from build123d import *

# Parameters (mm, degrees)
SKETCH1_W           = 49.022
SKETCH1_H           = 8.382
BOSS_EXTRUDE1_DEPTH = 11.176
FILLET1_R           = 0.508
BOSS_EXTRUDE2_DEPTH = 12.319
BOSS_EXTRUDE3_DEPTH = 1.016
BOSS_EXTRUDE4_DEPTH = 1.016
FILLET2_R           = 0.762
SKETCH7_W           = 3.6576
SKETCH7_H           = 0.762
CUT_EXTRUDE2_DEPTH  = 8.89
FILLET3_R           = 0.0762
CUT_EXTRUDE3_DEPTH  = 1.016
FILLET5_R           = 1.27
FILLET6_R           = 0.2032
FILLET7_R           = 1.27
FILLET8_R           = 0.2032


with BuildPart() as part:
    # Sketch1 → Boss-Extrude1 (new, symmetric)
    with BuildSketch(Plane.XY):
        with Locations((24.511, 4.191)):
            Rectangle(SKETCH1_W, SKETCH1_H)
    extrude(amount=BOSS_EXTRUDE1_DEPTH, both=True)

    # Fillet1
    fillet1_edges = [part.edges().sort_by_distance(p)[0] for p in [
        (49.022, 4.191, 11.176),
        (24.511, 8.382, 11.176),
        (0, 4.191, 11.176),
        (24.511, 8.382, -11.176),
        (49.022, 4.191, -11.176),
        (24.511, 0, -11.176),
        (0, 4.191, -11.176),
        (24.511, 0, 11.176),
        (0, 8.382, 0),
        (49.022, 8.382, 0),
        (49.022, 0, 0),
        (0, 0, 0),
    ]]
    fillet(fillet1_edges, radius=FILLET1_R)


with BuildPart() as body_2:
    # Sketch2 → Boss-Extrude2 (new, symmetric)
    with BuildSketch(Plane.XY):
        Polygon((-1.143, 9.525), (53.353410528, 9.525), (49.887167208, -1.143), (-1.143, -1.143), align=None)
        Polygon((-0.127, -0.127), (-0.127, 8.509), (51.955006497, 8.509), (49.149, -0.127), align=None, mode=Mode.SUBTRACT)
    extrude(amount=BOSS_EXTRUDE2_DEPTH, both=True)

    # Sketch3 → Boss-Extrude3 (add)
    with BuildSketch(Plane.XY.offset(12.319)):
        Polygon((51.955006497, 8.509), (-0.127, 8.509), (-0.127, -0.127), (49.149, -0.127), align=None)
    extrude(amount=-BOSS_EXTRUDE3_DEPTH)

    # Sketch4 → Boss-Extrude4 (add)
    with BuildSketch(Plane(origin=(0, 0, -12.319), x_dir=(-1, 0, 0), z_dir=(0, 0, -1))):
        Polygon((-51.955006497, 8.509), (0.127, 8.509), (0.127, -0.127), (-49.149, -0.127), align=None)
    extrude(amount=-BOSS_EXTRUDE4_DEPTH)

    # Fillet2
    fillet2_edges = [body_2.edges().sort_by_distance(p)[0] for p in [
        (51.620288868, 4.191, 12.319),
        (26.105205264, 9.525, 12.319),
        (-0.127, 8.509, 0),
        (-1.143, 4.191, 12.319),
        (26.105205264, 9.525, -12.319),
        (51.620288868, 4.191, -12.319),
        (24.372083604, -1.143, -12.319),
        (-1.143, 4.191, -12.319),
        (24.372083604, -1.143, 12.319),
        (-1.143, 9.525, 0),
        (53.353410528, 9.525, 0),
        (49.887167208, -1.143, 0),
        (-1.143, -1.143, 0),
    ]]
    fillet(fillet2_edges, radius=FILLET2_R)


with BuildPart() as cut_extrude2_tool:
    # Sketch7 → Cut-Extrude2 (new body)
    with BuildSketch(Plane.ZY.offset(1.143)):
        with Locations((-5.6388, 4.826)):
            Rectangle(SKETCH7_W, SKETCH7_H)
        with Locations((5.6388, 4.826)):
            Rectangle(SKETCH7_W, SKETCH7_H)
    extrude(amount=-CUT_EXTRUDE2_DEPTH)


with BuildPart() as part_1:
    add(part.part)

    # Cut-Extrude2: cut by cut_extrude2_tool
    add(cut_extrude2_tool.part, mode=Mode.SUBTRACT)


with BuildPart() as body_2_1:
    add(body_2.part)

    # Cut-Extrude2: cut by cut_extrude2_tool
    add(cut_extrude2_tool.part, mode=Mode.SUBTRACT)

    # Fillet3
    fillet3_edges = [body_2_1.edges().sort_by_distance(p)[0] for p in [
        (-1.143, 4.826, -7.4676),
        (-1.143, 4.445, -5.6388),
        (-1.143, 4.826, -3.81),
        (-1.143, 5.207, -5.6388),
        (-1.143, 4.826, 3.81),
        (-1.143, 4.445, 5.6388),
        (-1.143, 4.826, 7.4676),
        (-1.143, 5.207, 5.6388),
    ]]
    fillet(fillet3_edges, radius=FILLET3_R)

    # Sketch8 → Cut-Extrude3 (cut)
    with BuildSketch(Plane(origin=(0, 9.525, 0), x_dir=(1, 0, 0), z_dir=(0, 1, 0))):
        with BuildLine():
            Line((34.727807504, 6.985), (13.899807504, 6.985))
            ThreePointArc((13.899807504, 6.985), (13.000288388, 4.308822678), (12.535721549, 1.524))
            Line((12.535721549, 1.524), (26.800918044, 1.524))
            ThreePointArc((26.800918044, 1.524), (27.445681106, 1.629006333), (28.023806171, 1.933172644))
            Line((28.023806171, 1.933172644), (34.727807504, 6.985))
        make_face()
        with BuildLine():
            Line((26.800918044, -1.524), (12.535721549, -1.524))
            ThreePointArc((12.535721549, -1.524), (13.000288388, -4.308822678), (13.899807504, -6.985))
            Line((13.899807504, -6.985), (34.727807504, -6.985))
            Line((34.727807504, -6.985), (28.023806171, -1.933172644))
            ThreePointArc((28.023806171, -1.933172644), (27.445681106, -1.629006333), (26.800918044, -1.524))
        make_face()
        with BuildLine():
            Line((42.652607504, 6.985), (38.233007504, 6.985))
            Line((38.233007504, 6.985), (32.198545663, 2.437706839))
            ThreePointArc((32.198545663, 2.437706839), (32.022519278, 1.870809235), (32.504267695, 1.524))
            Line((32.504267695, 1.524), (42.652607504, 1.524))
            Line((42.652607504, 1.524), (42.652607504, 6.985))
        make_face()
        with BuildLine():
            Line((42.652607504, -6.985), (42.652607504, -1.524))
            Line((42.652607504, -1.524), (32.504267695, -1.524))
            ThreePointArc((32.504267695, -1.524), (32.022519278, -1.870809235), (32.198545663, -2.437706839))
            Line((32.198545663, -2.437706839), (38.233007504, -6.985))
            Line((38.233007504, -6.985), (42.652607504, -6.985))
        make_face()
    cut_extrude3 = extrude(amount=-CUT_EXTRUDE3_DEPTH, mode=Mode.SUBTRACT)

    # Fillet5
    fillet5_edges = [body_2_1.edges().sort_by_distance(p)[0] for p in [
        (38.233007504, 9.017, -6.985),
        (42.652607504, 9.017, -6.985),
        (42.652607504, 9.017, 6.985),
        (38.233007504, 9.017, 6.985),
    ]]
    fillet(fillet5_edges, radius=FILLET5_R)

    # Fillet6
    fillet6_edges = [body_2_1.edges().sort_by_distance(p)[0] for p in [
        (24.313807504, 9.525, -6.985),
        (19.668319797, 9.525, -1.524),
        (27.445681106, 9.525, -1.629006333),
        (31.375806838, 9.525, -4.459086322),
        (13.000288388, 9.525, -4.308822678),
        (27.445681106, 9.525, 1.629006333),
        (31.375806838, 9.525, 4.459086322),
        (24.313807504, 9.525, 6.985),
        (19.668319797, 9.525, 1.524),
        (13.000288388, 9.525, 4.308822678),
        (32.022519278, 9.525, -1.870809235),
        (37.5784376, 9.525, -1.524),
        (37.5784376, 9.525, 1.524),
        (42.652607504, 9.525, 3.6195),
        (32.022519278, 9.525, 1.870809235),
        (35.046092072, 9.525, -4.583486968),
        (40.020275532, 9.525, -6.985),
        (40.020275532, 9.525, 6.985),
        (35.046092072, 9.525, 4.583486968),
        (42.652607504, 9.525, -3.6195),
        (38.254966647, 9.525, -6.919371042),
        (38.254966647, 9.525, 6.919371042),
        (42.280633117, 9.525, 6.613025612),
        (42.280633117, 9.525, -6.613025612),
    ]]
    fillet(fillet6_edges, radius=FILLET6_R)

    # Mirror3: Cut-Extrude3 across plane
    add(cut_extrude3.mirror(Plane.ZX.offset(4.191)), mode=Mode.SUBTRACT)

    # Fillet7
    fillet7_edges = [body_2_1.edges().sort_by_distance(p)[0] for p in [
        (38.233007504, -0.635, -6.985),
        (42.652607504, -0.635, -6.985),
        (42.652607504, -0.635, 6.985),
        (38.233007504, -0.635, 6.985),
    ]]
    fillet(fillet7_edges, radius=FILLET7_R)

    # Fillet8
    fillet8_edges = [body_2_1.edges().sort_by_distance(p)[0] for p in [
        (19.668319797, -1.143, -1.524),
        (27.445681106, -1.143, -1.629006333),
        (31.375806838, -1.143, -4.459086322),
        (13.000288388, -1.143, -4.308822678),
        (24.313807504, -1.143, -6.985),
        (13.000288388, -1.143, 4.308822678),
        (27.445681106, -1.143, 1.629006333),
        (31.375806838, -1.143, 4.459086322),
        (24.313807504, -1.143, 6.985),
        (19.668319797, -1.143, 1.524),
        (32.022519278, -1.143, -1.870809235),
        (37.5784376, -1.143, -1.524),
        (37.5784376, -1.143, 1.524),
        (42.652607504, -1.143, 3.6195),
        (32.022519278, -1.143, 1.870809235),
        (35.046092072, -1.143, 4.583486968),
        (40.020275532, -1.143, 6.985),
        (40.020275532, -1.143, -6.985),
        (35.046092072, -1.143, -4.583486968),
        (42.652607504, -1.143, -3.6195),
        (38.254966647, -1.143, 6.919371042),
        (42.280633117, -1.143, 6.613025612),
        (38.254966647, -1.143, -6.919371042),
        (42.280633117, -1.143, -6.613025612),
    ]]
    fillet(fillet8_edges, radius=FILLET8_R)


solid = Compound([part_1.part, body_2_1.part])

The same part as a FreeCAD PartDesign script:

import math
import FreeCAD as App
import Part
import Sketcher
Q = App.Units.Quantity


def edges_at(feature, points):
    """Names of the edges that pass closest to the given points."""
    edges = feature.Shape.Edges
    near = lambda p: min(range(len(edges)), key=lambda i: edges[i].distToShape(Part.Vertex(*p))[0])
    return sorted({f"Edge{near(p) + 1}" for p in points})


def add_polygon(sketch, points):
    """Adds a closed chain of lines whose ends are joined by coincident constraints."""
    first, n = sketch.GeometryCount, len(points)
    for a, b in zip(points, points[1:] + points[:1]):
        sketch.addGeometry(Part.LineSegment(App.Vector(*a, 0), App.Vector(*b, 0)), False)
    for i in range(n):
        sketch.addConstraint(Sketcher.Constraint("Coincident", first + i, 2, first + (i + 1) % n, 1))

doc = App.newDocument("Part")
params = doc.addObject("Spreadsheet::Sheet", "Params")
for row, (alias, value) in enumerate([
    ("sketch1_width", "1.93 in"),
    ("sketch1_height", "0.33 in"),
    ("pad1_length", "0.88 in"),
    ("fillet_radius", "0.02 in"),
    ("sketch2_width", "1.94 in"),
    ("sketch2_height", "0.42 in"),
    ("sketch2_height2", "0.34 in"),
    ("pad2_length", "0.97 in"),
    ("sketch3_width", "1.94 in"),
    ("sketch3_height", "0.34 in"),
    ("pad3_length", "0.04 in"),
    ("sketch4_width", "1.94 in"),
    ("sketch4_height", "0.34 in"),
    ("pad4_length", "0.04 in"),
    ("fillet2_radius", "0.03 in"),
    ("sketch5_width", "0.03 in"),
    ("sketch5_height", "0.144 in"),
    ("pad5_length", "0.35 in"),
    ("fillet3_radius", "0.003 in"),
    ("sketch6_radius", "0.7 in"),
    ("sketch6_radius2", "0.08 in"),
    ("sketch6_radius3", "0.02 in"),
    ("sketch6_width", "0.82 in"),
    ("sketch6_width2", "0.174 in"),
    ("pocket1_length", "0.04 in"),
    ("fillet4_radius", "0.05 in"),
    ("fillet5_radius", "0.008 in"),
    ("fillet6_radius", "0.05 in"),
    ("fillet7_radius", "0.008 in"),
], start=1):
    params.set(f"A{row}", alias)
    params.set(f"B{row}", "=" + value)
    params.setAlias(f"B{row}", alias)

body = doc.addObject("PartDesign::Body", "Body")

# Sketch on XY plane
sketch1 = body.newObject("Sketcher::SketchObject", "Sketch")
sketch1.AttachmentSupport = (doc.getObject("XY_Plane"), [""])
sketch1.MapMode = "FlatFace"
add_polygon(sketch1, [(0, 8), (0, 0), (49, 0), (49, 8)])  # lines 0-3
sketch1.addConstraint(Sketcher.Constraint("Vertical", 0))
sketch1.addConstraint(Sketcher.Constraint("Horizontal", 1))
sketch1.addConstraint(Sketcher.Constraint("Vertical", 2))
sketch1.addConstraint(Sketcher.Constraint("Horizontal", 3))
sketch1.addConstraint(Sketcher.Constraint("Coincident", 0, 2, -1, 1))
sketch1.addConstraint(Sketcher.Constraint("DistanceX", 1, 1, 1, 2, Q("1.93 in")))
sketch1.addConstraint(Sketcher.Constraint("DistanceY", 0, 2, 0, 1, Q("0.33 in")))
sketch1.setExpression("Constraints[9]", "Params.sketch1_width")
sketch1.setExpression("Constraints[10]", "Params.sketch1_height")
pad1 = body.newObject("PartDesign::Pad", "Pad")
pad1.Profile = sketch1
pad1.setExpression("Length", "Params.pad1_length")
pad1.Midplane = True
doc.recompute()

fillet = body.newObject("PartDesign::Fillet", "Fillet")
fillet.Base = (pad1, ["Edge1"])
fillet.UseAllEdges = True
fillet.setExpression("Radius", "Params.fillet_radius")
body2 = doc.addObject("PartDesign::Body", "Body001")

# Sketch on XY plane
sketch2 = body2.newObject("Sketcher::SketchObject", "Sketch001")
sketch2.AttachmentSupport = (doc.getObject("XY_Plane001"), [""])
sketch2.MapMode = "FlatFace"
add_polygon(sketch2, [(53, 10), (-1, 10), (-1, -1), (50, -1)])  # lines 0-3
add_polygon(sketch2, [(0, 0), (0, 9), (52, 9), (49, 0)])  # lines 4-7
sketch2.addConstraint(Sketcher.Constraint("Horizontal", 0))
sketch2.addConstraint(Sketcher.Constraint("Vertical", 1))
sketch2.addConstraint(Sketcher.Constraint("Horizontal", 2))
sketch2.addConstraint(Sketcher.Constraint("Vertical", 4))
sketch2.addConstraint(Sketcher.Constraint("Horizontal", 5))
sketch2.addConstraint(Sketcher.Constraint("Horizontal", 7))
sketch2.addConstraint(Sketcher.Constraint("Parallel", 3, 6))
sketch2.addConstraint(Sketcher.Constraint("Angle", 3, Q("72 deg")))
sketch2.addConstraint(Sketcher.Constraint("DistanceX", 7, 2, 7, 1, Q("1.94 in")))
sketch2.addConstraint(Sketcher.Constraint("DistanceY", 1, 2, 1, 1, Q("0.42 in")))
sketch2.addConstraint(Sketcher.Constraint("DistanceY", 4, 1, 4, 2, Q("0.34 in")))
sketch2.addConstraint(Sketcher.Constraint("DistanceX", 0, 2, 4, 2, Q("0.04 in")))
sketch2.addConstraint(Sketcher.Constraint("DistanceY", 4, 2, 0, 2, Q("0.04 in")))
sketch2.addConstraint(Sketcher.Constraint("DistanceX", 0, 2, -1, 1, Q("0.045 in")))
sketch2.addConstraint(Sketcher.Constraint("DistanceY", -1, 1, 0, 2, Q("0.375 in")))
sketch2.addConstraint(Sketcher.Constraint("DistanceX", 0, 2, 0, 1, 54.496411))
sketch2.setExpression("Constraints[16]", "Params.sketch2_width")
sketch2.setExpression("Constraints[17]", "Params.sketch2_height")
sketch2.setExpression("Constraints[18]", "Params.sketch2_height2")
pad2 = body2.newObject("PartDesign::Pad", "Pad001")
pad2.Profile = sketch2
pad2.setExpression("Length", "Params.pad2_length")
pad2.Midplane = True

# Sketch on XY plane
sketch3 = body2.newObject("Sketcher::SketchObject", "Sketch002")
sketch3.AttachmentSupport = (doc.getObject("XY_Plane001"), [""])
sketch3.MapMode = "FlatFace"
sketch3.AttachmentOffset = App.Placement(App.Vector(0, 0, 0.485 * 25.4), App.Rotation())
add_polygon(sketch3, [(52, 9), (0, 9), (0, 0), (49, 0)])  # lines 0-3
sketch3.addConstraint(Sketcher.Constraint("Horizontal", 0))
sketch3.addConstraint(Sketcher.Constraint("Vertical", 1))
sketch3.addConstraint(Sketcher.Constraint("Horizontal", 2))
sketch3.addConstraint(Sketcher.Constraint("Angle", 3, Q("72 deg")))
sketch3.addConstraint(Sketcher.Constraint("DistanceX", 2, 1, 2, 2, Q("1.94 in")))
sketch3.addConstraint(Sketcher.Constraint("DistanceY", 1, 2, 1, 1, Q("0.34 in")))
sketch3.addConstraint(Sketcher.Constraint("DistanceX", 0, 2, -1, 1, Q("0.005 in")))
sketch3.addConstraint(Sketcher.Constraint("DistanceY", -1, 1, 0, 2, Q("0.335 in")))
sketch3.setExpression("Constraints[8]", "Params.sketch3_width")
sketch3.setExpression("Constraints[9]", "Params.sketch3_height")
pad3 = body2.newObject("PartDesign::Pad", "Pad002")
pad3.Profile = sketch3
pad3.setExpression("Length", "Params.pad3_length")
pad3.Reversed = True

# Sketch on XY plane
sketch4 = body2.newObject("Sketcher::SketchObject", "Sketch003")
sketch4.AttachmentSupport = (doc.getObject("XY_Plane001"), [""])
sketch4.MapMode = "FlatFace"
sketch4.AttachmentOffset = App.Placement(App.Vector(0, 0, -0.485 * 25.4), App.Rotation())
add_polygon(sketch4, [(0, 9), (52, 9), (49, 0), (0, 0)])  # lines 0-3
sketch4.addConstraint(Sketcher.Constraint("Horizontal", 0))
sketch4.addConstraint(Sketcher.Constraint("Horizontal", 2))
sketch4.addConstraint(Sketcher.Constraint("Vertical", 3))
sketch4.addConstraint(Sketcher.Constraint("Angle", 1, Q("-108 deg")))
sketch4.addConstraint(Sketcher.Constraint("DistanceX", 2, 2, 2, 1, Q("1.94 in")))
sketch4.addConstraint(Sketcher.Constraint("DistanceY", 3, 1, 3, 2, Q("0.34 in")))
sketch4.addConstraint(Sketcher.Constraint("DistanceY", -1, 1, 0, 2, Q("0.335 in")))
sketch4.addConstraint(Sketcher.Constraint("DistanceX", -1, 1, 1, 2, Q("1.935 in")))
sketch4.setExpression("Constraints[8]", "Params.sketch4_width")
sketch4.setExpression("Constraints[9]", "Params.sketch4_height")
pad4 = body2.newObject("PartDesign::Pad", "Pad003")
pad4.Profile = sketch4
pad4.setExpression("Length", "Params.pad4_length")
doc.recompute()

fillet2 = body2.newObject("PartDesign::Fillet", "Fillet001")
fillet2.Base = (pad4, edges_at(pad4, [
    (51.62, 4.191, 12.319),
    (26.105, 9.525, 12.319),
    (-0.127, 8.509, 0),
    (-1.143, 4.191, 12.319),
    (26.105, 9.525, -12.319),
    (51.62, 4.191, -12.319),
    (24.372, -1.143, -12.319),
    (-1.143, 4.191, -12.319),
    (24.372, -1.143, 12.319),
    (-1.143, 9.525, 0),
    (53.353, 9.525, 0),
    (49.887, -1.143, 0),
    (-1.143, -1.143, 0),
]))
fillet2.setExpression("Radius", "Params.fillet2_radius")
body3 = doc.addObject("PartDesign::Body", "Body002")
body3.AllowCompound = True

# Sketch on YZ plane
sketch5 = body3.newObject("Sketcher::SketchObject", "Sketch004")
sketch5.AttachmentSupport = (doc.getObject("YZ_Plane002"), [""])
sketch5.MapMode = "FlatFace"
sketch5.AttachmentOffset = App.Placement(App.Vector(0, 0, -0.045 * 25.4), App.Rotation())
add_polygon(sketch5, [(5.2, -7.5), (4.4, -7.5), (4.4, -3.8), (5.2, -3.8)])  # lines 0-3
add_polygon(sketch5, [(5.2, 3.8), (4.4, 3.8), (4.4, 7.5), (5.2, 7.5)])  # lines 4-7
sketch5.addConstraint(Sketcher.Constraint("Horizontal", 0))
sketch5.addConstraint(Sketcher.Constraint("Vertical", 1))
sketch5.addConstraint(Sketcher.Constraint("Horizontal", 2))
sketch5.addConstraint(Sketcher.Constraint("Vertical", 3))
sketch5.addConstraint(Sketcher.Constraint("Horizontal", 4))
sketch5.addConstraint(Sketcher.Constraint("Vertical", 5))
sketch5.addConstraint(Sketcher.Constraint("Horizontal", 6))
sketch5.addConstraint(Sketcher.Constraint("Vertical", 7))
sketch5.addConstraint(Sketcher.Constraint("Symmetric", 1, 2, 4, 2, -1))
sketch5.addConstraint(Sketcher.Constraint("Symmetric", 3, 2, 6, 2, -1))
sketch5.addConstraint(Sketcher.Constraint("DistanceX", 0, 2, 0, 1, Q("0.03 in")))
sketch5.addConstraint(Sketcher.Constraint("DistanceY", 1, 2, 4, 2, Q("0.3 in")))
sketch5.addConstraint(Sketcher.Constraint("DistanceY", 1, 1, 1, 2, Q("0.144 in")))
sketch5.addConstraint(Sketcher.Constraint("DistanceX", -1, 1, 0, 2, Q("0.175 in")))
sketch5.setExpression("Constraints[18]", "Params.sketch5_width")
sketch5.setExpression("Constraints[20]", "Params.sketch5_height")
pad5 = body3.newObject("PartDesign::Pad", "Pad004")
pad5.Profile = sketch5
pad5.setExpression("Length", "Params.pad5_length")
doc.recompute()

body4 = doc.addObject("PartDesign::Body", "Body003")
body4.BaseFeature = body3
boolean = body.newObject("PartDesign::Boolean", "Boolean")
boolean.Type = "Cut"
boolean.addObjects([body4])
doc.recompute()

boolean2 = body2.newObject("PartDesign::Boolean", "Boolean001")
boolean2.Type = "Cut"
boolean2.addObjects([body3])
doc.recompute()

fillet3 = body2.newObject("PartDesign::Fillet", "Fillet002")
fillet3.Base = (boolean2, edges_at(boolean2, [
    (-1.143, 4.826, -7.468),
    (-1.143, 4.445, -5.639),
    (-1.143, 4.826, -3.81),
    (-1.143, 5.207, -5.639),
    (-1.143, 4.826, 3.81),
    (-1.143, 4.445, 5.639),
    (-1.143, 4.826, 7.468),
    (-1.143, 5.207, 5.639),
]))
fillet3.setExpression("Radius", "Params.fillet3_radius")

# Sketch on XZ plane
sketch6 = body2.newObject("Sketcher::SketchObject", "Sketch005")
sketch6.AttachmentSupport = (doc.getObject("XZ_Plane001"), [""])
sketch6.MapMode = "FlatFace"
sketch6.AttachmentOffset = App.Placement(App.Vector(0, 0, -0.375 * 25.4), App.Rotation())
sketch6.addGeometry(Part.LineSegment(App.Vector(34.7, -7, 0), App.Vector(13.9, -7, 0)), False)
sketch6.addGeometry(Part.ArcOfCircle(Part.Circle(App.Vector(30.3, 0, 0), App.Vector(0, 0, 1), 17.8), math.radians(-175.08), math.radians(-156.87)), False)
sketch6.addGeometry(Part.LineSegment(App.Vector(12.5, -1.5, 0), App.Vector(26.8, -1.5, 0)), False)
sketch6.addGeometry(Part.ArcOfCircle(Part.Circle(App.Vector(26.8, -3.6, 0), App.Vector(0, 0, 1), 2), math.radians(53), math.radians(90)), False)
sketch6.addGeometry(Part.LineSegment(App.Vector(28, -1.9, 0), App.Vector(34.7, -7, 0)), False)
sketch6.addGeometry(Part.LineSegment(App.Vector(26.8, 1.5, 0), App.Vector(12.5, 1.5, 0)), False)
sketch6.addGeometry(Part.ArcOfCircle(Part.Circle(App.Vector(30.3, 0, 0), App.Vector(0, 0, 1), 17.8), math.radians(156.87), math.radians(175.08)), False)
sketch6.addGeometry(Part.LineSegment(App.Vector(13.9, 7, 0), App.Vector(34.7, 7, 0)), False)
sketch6.addGeometry(Part.LineSegment(App.Vector(34.7, 7, 0), App.Vector(28, 1.9, 0)), False)
sketch6.addGeometry(Part.ArcOfCircle(Part.Circle(App.Vector(26.8, 3.6, 0), App.Vector(0, 0, 1), 2), math.radians(-90), math.radians(-53)), False)
sketch6.addGeometry(Part.LineSegment(App.Vector(42.7, -7, 0), App.Vector(38.2, -7, 0)), False)
sketch6.addGeometry(Part.LineSegment(App.Vector(38.2, -7, 0), App.Vector(32.2, -2.4, 0)), False)
sketch6.addGeometry(Part.ArcOfCircle(Part.Circle(App.Vector(32.5, -2, 0), App.Vector(0, 0, 1), 0.5), math.radians(90), math.radians(233)), False)
sketch6.addGeometry(Part.LineSegment(App.Vector(32.5, -1.5, 0), App.Vector(42.7, -1.5, 0)), False)
sketch6.addGeometry(Part.LineSegment(App.Vector(42.7, -1.5, 0), App.Vector(42.7, -7, 0)), False)
sketch6.addGeometry(Part.LineSegment(App.Vector(42.7, 7, 0), App.Vector(42.7, 1.5, 0)), False)
sketch6.addGeometry(Part.LineSegment(App.Vector(42.7, 1.5, 0), App.Vector(32.5, 1.5, 0)), False)
sketch6.addGeometry(Part.ArcOfCircle(Part.Circle(App.Vector(32.5, 2, 0), App.Vector(0, 0, 1), 0.5), math.radians(127), math.radians(270)), False)
sketch6.addGeometry(Part.LineSegment(App.Vector(32.2, 2.4, 0), App.Vector(38.2, 7, 0)), False)
sketch6.addGeometry(Part.LineSegment(App.Vector(38.2, 7, 0), App.Vector(42.7, 7, 0)), False)
sketch6.addConstraint(Sketcher.Constraint("Coincident", 0, 2, 1, 2))
sketch6.addConstraint(Sketcher.Constraint("Coincident", 1, 1, 2, 1))
sketch6.addConstraint(Sketcher.Constraint("Tangent", 2, 2, 3, 2))
sketch6.addConstraint(Sketcher.Constraint("Tangent", 3, 1, 4, 1))
sketch6.addConstraint(Sketcher.Constraint("Coincident", 4, 2, 0, 1))
sketch6.addConstraint(Sketcher.Constraint("Coincident", 5, 2, 6, 2))
sketch6.addConstraint(Sketcher.Constraint("Coincident", 6, 1, 7, 1))
sketch6.addConstraint(Sketcher.Constraint("Coincident", 7, 2, 8, 1))
sketch6.addConstraint(Sketcher.Constraint("Tangent", 8, 2, 9, 2))
sketch6.addConstraint(Sketcher.Constraint("Tangent", 9, 1, 5, 1))
sketch6.addConstraint(Sketcher.Constraint("Coincident", 10, 2, 11, 1))
sketch6.addConstraint(Sketcher.Constraint("Tangent", 11, 2, 12, 2))
sketch6.addConstraint(Sketcher.Constraint("Tangent", 12, 1, 13, 1))
sketch6.addConstraint(Sketcher.Constraint("Coincident", 13, 2, 14, 1))
sketch6.addConstraint(Sketcher.Constraint("Coincident", 14, 2, 10, 1))
sketch6.addConstraint(Sketcher.Constraint("Coincident", 15, 2, 16, 1))
sketch6.addConstraint(Sketcher.Constraint("Tangent", 16, 2, 17, 2))
sketch6.addConstraint(Sketcher.Constraint("Tangent", 17, 1, 18, 1))
sketch6.addConstraint(Sketcher.Constraint("Coincident", 18, 2, 19, 1))
sketch6.addConstraint(Sketcher.Constraint("Coincident", 19, 2, 15, 1))
sketch6.addConstraint(Sketcher.Constraint("Horizontal", 0))
sketch6.addConstraint(Sketcher.Constraint("Horizontal", 2))
sketch6.addConstraint(Sketcher.Constraint("Horizontal", 5))
sketch6.addConstraint(Sketcher.Constraint("Horizontal", 7))
sketch6.addConstraint(Sketcher.Constraint("Horizontal", 10))
sketch6.addConstraint(Sketcher.Constraint("Horizontal", 13))
sketch6.addConstraint(Sketcher.Constraint("Vertical", 14))
sketch6.addConstraint(Sketcher.Constraint("Vertical", 15))
sketch6.addConstraint(Sketcher.Constraint("Horizontal", 16))
sketch6.addConstraint(Sketcher.Constraint("Horizontal", 19))
sketch6.addConstraint(Sketcher.Constraint("Coincident", 6, 3, 1, 3))
sketch6.addConstraint(Sketcher.Constraint("Equal", 1, 6))
sketch6.addConstraint(Sketcher.Constraint("Equal", 3, 9))
sketch6.addConstraint(Sketcher.Constraint("Equal", 12, 17))
sketch6.addConstraint(Sketcher.Constraint("Symmetric", 3, 3, 9, 3, -1))
sketch6.addConstraint(Sketcher.Constraint("Symmetric", 12, 3, 17, 3, -1))
sketch6.addConstraint(Sketcher.Constraint("Symmetric", 0, 2, 6, 1, -1))
sketch6.addConstraint(Sketcher.Constraint("Symmetric", 10, 2, 18, 2, -1))
sketch6.addConstraint(Sketcher.Constraint("Parallel", 4, 11))
sketch6.addConstraint(Sketcher.Constraint("Parallel", 8, 18))
sketch6.addConstraint(Sketcher.Constraint("Horizontal", 4, 2, 10, 2))
sketch6.addConstraint(Sketcher.Constraint("Horizontal", 2, 2, 12, 1))
sketch6.addConstraint(Sketcher.Constraint("Vertical", 14, 2, 15, 2))
sketch6.addConstraint(Sketcher.Constraint("Radius", 1, Q("0.7 in")))
sketch6.addConstraint(Sketcher.Constraint("Radius", 3, Q("0.08 in")))
sketch6.addConstraint(Sketcher.Constraint("Radius", 12, Q("0.02 in")))
sketch6.addConstraint(Sketcher.Constraint("Angle", 4, Q("-37 deg")))
sketch6.addConstraint(Sketcher.Constraint("DistanceX", 0, 2, 0, 1, Q("0.82 in")))
sketch6.addConstraint(Sketcher.Constraint("DistanceY", 1, 1, 9, 3, Q("0.2 in")))
sketch6.addConstraint(Sketcher.Constraint("DistanceX", 10, 2, 10, 1, Q("0.174 in")))
sketch6.addConstraint(Sketcher.Constraint("DistanceY", 14, 2, 14, 1, Q("0.215 in")))
sketch6.addConstraint(Sketcher.Constraint("DistanceX", 4, 2, 10, 2, Q("0.138 in")))
sketch6.addConstraint(Sketcher.Constraint("DistanceX", -1, 1, 3, 3, 26.800918))
sketch6.setExpression("Constraints[43]", "Params.sketch6_radius")
sketch6.setExpression("Constraints[44]", "Params.sketch6_radius2")
sketch6.setExpression("Constraints[45]", "Params.sketch6_radius3")
sketch6.setExpression("Constraints[47]", "Params.sketch6_width")
sketch6.setExpression("Constraints[49]", "Params.sketch6_width2")
pocket1 = body2.newObject("PartDesign::Pocket", "Pocket")
pocket1.Profile = sketch6
pocket1.setExpression("Length", "Params.pocket1_length")
pocket1.Reversed = True
doc.recompute()

fillet4 = body2.newObject("PartDesign::Fillet", "Fillet003")
fillet4.Base = (pocket1, edges_at(pocket1, [
    (38.233, 9.017, -6.985),
    (42.653, 9.017, -6.985),
    (42.653, 9.017, 6.985),
    (38.233, 9.017, 6.985),
]))
fillet4.setExpression("Radius", "Params.fillet4_radius")
doc.recompute()

fillet5 = body2.newObject("PartDesign::Fillet", "Fillet004")
fillet5.Base = (fillet4, edges_at(fillet4, [
    (24.314, 9.525, -6.985),
    (19.668, 9.525, -1.524),
    (27.446, 9.525, -1.629),
    (31.376, 9.525, -4.459),
    (13, 9.525, -4.309),
    (27.446, 9.525, 1.629),
    (31.376, 9.525, 4.459),
    (24.314, 9.525, 6.985),
    (19.668, 9.525, 1.524),
    (13, 9.525, 4.309),
    (32.023, 9.525, -1.871),
    (37.578, 9.525, -1.524),
    (37.578, 9.525, 1.524),
    (42.653, 9.525, 3.619),
    (32.023, 9.525, 1.871),
    (35.046, 9.525, -4.583),
    (40.02, 9.525, -6.985),
    (40.02, 9.525, 6.985),
    (35.046, 9.525, 4.583),
    (42.653, 9.525, -3.619),
    (38.255, 9.525, -6.919),
    (38.255, 9.525, 6.919),
    (42.281, 9.525, 6.613),
    (42.281, 9.525, -6.613),
]))
fillet5.setExpression("Radius", "Params.fillet5_radius")
doc.recompute()

datumplane = body2.newObject("PartDesign::Plane", "DatumPlane")
datumplane.AttachmentSupport = (doc.getObject("XZ_Plane001"), [""])
datumplane.MapMode = "FlatFace"
datumplane.AttachmentOffset = App.Placement(App.Vector(0, 0, -0.165 * 25.4), App.Rotation())
mirrored = body2.newObject("PartDesign::Mirrored", "Mirrored")
mirrored.Originals = [pocket1]
mirrored.MirrorPlane = (datumplane, [""])
body2.Tip = mirrored
doc.recompute()

fillet6 = body2.newObject("PartDesign::Fillet", "Fillet005")
fillet6.Base = (mirrored, edges_at(mirrored, [
    (38.233, -0.635, -6.985),
    (42.653, -0.635, -6.985),
    (42.653, -0.635, 6.985),
    (38.233, -0.635, 6.985),
]))
fillet6.setExpression("Radius", "Params.fillet6_radius")
doc.recompute()

fillet7 = body2.newObject("PartDesign::Fillet", "Fillet006")
fillet7.Base = (fillet6, edges_at(fillet6, [
    (19.668, -1.143, -1.524),
    (27.446, -1.143, -1.629),
    (31.376, -1.143, -4.459),
    (13, -1.143, -4.309),
    (24.314, -1.143, -6.985),
    (13, -1.143, 4.309),
    (27.446, -1.143, 1.629),
    (31.376, -1.143, 4.459),
    (24.314, -1.143, 6.985),
    (19.668, -1.143, 1.524),
    (32.023, -1.143, -1.871),
    (37.578, -1.143, -1.524),
    (37.578, -1.143, 1.524),
    (42.653, -1.143, 3.619),
    (32.023, -1.143, 1.871),
    (35.046, -1.143, 4.583),
    (40.02, -1.143, 6.985),
    (40.02, -1.143, -6.985),
    (35.046, -1.143, -4.583),
    (42.653, -1.143, -3.619),
    (38.255, -1.143, 6.919),
    (42.281, -1.143, 6.613),
    (38.255, -1.143, -6.919),
    (42.281, -1.143, -6.613),
]))
fillet7.setExpression("Radius", "Params.fillet7_radius")

doc.recompute()
